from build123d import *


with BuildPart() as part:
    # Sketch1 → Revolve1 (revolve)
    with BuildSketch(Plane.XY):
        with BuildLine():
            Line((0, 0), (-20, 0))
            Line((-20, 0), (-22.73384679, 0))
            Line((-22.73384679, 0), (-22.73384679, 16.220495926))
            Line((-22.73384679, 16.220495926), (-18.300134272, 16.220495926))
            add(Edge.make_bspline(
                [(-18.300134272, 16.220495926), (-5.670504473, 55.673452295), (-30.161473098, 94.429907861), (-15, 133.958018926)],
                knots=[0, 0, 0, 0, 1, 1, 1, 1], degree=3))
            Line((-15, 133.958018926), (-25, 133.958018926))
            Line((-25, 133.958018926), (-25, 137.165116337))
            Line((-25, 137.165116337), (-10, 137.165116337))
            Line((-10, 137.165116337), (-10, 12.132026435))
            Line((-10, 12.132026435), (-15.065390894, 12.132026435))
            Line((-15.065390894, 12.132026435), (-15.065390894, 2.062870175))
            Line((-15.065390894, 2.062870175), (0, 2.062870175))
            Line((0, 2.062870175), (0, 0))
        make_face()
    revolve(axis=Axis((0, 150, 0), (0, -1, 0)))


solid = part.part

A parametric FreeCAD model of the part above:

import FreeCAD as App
import Part
import Sketcher

V = App.Vector

doc = App.newDocument("Part")
params = doc.addObject("Spreadsheet::Sheet", "Params")
for row, (alias, value) in enumerate([
    ("sketch1_width", "15 mm"),
    ("sketch1_width2", "10 mm"),
    ("revolution_angle", "360 deg"),
], start=1):
    params.set(f"A{row}", alias)
    params.set(f"B{row}", "=" + value)
    params.setAlias(f"B{row}", alias)

body = doc.addObject("PartDesign::Body", "Body")

sketch1 = doc.addObject("Sketcher::SketchObject", "Sketch")
body.addObject(sketch1)
sketch1.AttachmentSupport = (doc.XY_Plane, [""])
sketch1.MapMode = "FlatFace"
sketch1.addGeometry([
    Part.LineSegment(V(-22.733847, 0, 0), V(0, 0, 0)),
    Part.LineSegment(V(0, 0, 0), V(0, 2.06287, 0)),
    Part.LineSegment(V(0, 2.06287, 0), V(-15.065391, 2.06287, 0)),
    Part.LineSegment(V(-15.065391, 2.06287, 0), V(-15.065391, 12.132026, 0)),
    Part.LineSegment(V(-15.065391, 12.132026, 0), V(-10, 12.132026, 0)),
    Part.LineSegment(V(-10, 12.132026, 0), V(-10, 137.165116, 0)),
    Part.LineSegment(V(-10, 137.165116, 0), V(-25, 137.165116, 0)),
    Part.LineSegment(V(-25, 137.165116, 0), V(-25, 133.958019, 0)),
    Part.LineSegment(V(-25, 133.958019, 0), V(-15, 133.958019, 0)),
    Part.BSplineCurve([V(-18.300134, 16.220496, 0), V(-5.670504, 55.673452, 0), V(-30.161473, 94.429908, 0), V(-15, 133.958019, 0)], [4, 4], [0, 1], False, 3, [1, 1, 1, 1], False),
    Part.LineSegment(V(-18.300134, 16.220496, 0), V(-22.733847, 16.220496, 0)),
    Part.LineSegment(V(-22.733847, 16.220496, 0), V(-22.733847, 0, 0)),
], False)
sketch1.addConstraint([
    Sketcher.Constraint("Block", 9),
    Sketcher.Constraint("Coincident", 0, 2, 1, 1),
    Sketcher.Constraint("Coincident", 1, 2, 2, 1),
    Sketcher.Constraint("Coincident", 2, 2, 3, 1),
    Sketcher.Constraint("Coincident", 3, 2, 4, 1),
    Sketcher.Constraint("Coincident", 4, 2, 5, 1),
    Sketcher.Constraint("Coincident", 5, 2, 6, 1),
    Sketcher.Constraint("Coincident", 6, 2, 7, 1),
    Sketcher.Constraint("Coincident", 7, 2, 8, 1),
    Sketcher.Constraint("Coincident", 8, 2, 9, 2),
    Sketcher.Constraint("Coincident", 9, 1, 10, 1),
    Sketcher.Constraint("Coincident", 10, 2, 11, 1),
    Sketcher.Constraint("Coincident", 11, 2, 0, 1),
    Sketcher.Constraint("Horizontal", 0),
    Sketcher.Constraint("Vertical", 1),
    Sketcher.Constraint("Horizontal", 2),
    Sketcher.Constraint("Vertical", 3),
    Sketcher.Constraint("Horizontal", 4),
    Sketcher.Constraint("Vertical", 5),
    Sketcher.Constraint("Horizontal", 6),
    Sketcher.Constraint("Vertical", 7),
    Sketcher.Constraint("Horizontal", 8),
    Sketcher.Constraint("Horizontal", 10),
    Sketcher.Constraint("Vertical", 11),
    Sketcher.Constraint("Coincident", 0, 2, -1, 1),
    Sketcher.Constraint("DistanceX", 6, 2, 6, 1, 15.0),
    Sketcher.Constraint("DistanceX", 8, 1, 8, 2, 10.0),
    Sketcher.Constraint("DistanceX", 2, 2, 2, 1, 15.065391),
    Sketcher.Constraint("DistanceY", 1, 1, 1, 2, 2.06287),
    Sketcher.Constraint("DistanceY", 5, 1, 5, 2, 125.03309),
    Sketcher.Constraint("DistanceX", 0, 1, 0, 2, 22.733847),
    Sketcher.Constraint("DistanceY", 3, 1, 3, 2, 10.069156),
])
sketch1.setExpression("Constraints[25]", "Params.sketch1_width")
sketch1.setExpression("Constraints[26]", "Params.sketch1_width2")
revolution = doc.addObject("PartDesign::Revolution", "Revolution")
body.addObject(revolution)
revolution.Profile = sketch1
revolution.ReferenceAxis = (sketch1, ["V_Axis"])
revolution.setExpression("Angle", "Params.revolution_angle")

doc.recompute()
